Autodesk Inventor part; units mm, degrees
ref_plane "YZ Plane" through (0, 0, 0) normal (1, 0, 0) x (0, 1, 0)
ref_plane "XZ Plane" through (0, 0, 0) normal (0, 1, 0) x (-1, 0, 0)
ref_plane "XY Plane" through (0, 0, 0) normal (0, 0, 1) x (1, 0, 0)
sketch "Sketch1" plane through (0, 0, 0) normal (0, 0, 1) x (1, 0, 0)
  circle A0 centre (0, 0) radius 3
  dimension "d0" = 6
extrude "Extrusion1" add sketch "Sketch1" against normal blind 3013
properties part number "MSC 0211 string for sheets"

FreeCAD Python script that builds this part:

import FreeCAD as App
import Part
import Sketcher

V = App.Vector

doc = App.newDocument("Part")
body = doc.addObject("PartDesign::Body", "Body")

# Sketch on XY plane
sketch1 = doc.addObject("Sketcher::SketchObject", "Sketch")
body.addObject(sketch1)
sketch1.AttachmentSupport = (doc.XY_Plane, [""])
sketch1.MapMode = "FlatFace"
sketch1.addGeometry(Part.Circle(V(0, 0, 0), V(0, 0, 1), 3), False)
sketch1.addConstraint([
    Sketcher.Constraint("Coincident", 0, 3, -1, 1),
    Sketcher.Constraint("Diameter", 0, 6.0),
])
pad1 = doc.addObject("PartDesign::Pad", "Pad")
body.addObject(pad1)
pad1.Profile = sketch1
pad1.Length = 3013
pad1.Reversed = True

doc.recompute()
